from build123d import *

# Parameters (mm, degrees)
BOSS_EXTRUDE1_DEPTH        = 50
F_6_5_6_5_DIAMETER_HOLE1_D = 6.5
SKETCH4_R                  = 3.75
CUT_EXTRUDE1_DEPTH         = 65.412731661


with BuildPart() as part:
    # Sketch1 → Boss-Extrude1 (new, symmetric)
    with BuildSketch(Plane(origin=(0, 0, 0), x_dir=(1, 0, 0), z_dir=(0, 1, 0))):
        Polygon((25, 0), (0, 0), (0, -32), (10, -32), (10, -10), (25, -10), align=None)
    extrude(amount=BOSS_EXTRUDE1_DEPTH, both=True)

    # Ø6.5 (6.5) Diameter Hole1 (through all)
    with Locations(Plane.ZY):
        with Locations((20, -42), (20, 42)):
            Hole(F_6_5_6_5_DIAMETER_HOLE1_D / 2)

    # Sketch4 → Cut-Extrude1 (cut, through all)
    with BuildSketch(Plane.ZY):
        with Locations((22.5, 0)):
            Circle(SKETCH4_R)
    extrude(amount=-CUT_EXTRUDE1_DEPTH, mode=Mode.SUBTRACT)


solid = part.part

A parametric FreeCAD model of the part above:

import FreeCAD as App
import Part
import Sketcher
from FreeCAD import Vector
Q = App.Units.Quantity

doc = App.newDocument("Part")
params = doc.addObject("Spreadsheet::Sheet", "Params")
for row, (alias, value) in enumerate([
    ("sketch1_width", "25 mm"),
    ("sketch1_width2", "10 mm"),
    ("sketch1_height", "32 mm"),
    ("pad1_length", "100 mm"),
    ("sketch2_diameter", "6.5 mm"),
    ("hole_diameter", "6.5 mm"),
    ("sketch3_diameter", "7.5 mm"),
], start=1):
    params.set(f"A{row}", alias)
    params.set(f"B{row}", "=" + value)
    params.setAlias(f"B{row}", alias)

body = doc.addObject("PartDesign::Body", "Body")

# Sketch on XZ plane
sketch1 = body.newObject("Sketcher::SketchObject", "Sketch")
sketch1.AttachmentSupport = (doc.getObject("XZ_Plane"), [""])
sketch1.MapMode = "FlatFace"
sketch1.addGeometry(Part.LineSegment(Vector(25, 0, 0), Vector(0, 0, 0)), False)
sketch1.addGeometry(Part.LineSegment(Vector(0, 0, 0), Vector(0, 32, 0)), False)
sketch1.addGeometry(Part.LineSegment(Vector(0, 32, 0), Vector(10, 32, 0)), False)
sketch1.addGeometry(Part.LineSegment(Vector(10, 32, 0), Vector(10, 10, 0)), False)
sketch1.addGeometry(Part.LineSegment(Vector(10, 10, 0), Vector(25, 10, 0)), False)
sketch1.addGeometry(Part.LineSegment(Vector(25, 10, 0), Vector(25, 0, 0)), False)
sketch1.addConstraint(Sketcher.Constraint("Coincident", 0, 2, 1, 1))
sketch1.addConstraint(Sketcher.Constraint("Coincident", 1, 2, 2, 1))
sketch1.addConstraint(Sketcher.Constraint("Coincident", 2, 2, 3, 1))
sketch1.addConstraint(Sketcher.Constraint("Coincident", 3, 2, 4, 1))
sketch1.addConstraint(Sketcher.Constraint("Coincident", 4, 2, 5, 1))
sketch1.addConstraint(Sketcher.Constraint("Coincident", 5, 2, 0, 1))
sketch1.addConstraint(Sketcher.Constraint("Horizontal", 0))
sketch1.addConstraint(Sketcher.Constraint("Vertical", 1))
sketch1.addConstraint(Sketcher.Constraint("Horizontal", 2))
sketch1.addConstraint(Sketcher.Constraint("Vertical", 3))
sketch1.addConstraint(Sketcher.Constraint("Horizontal", 4))
sketch1.addConstraint(Sketcher.Constraint("Vertical", 5))
sketch1.addConstraint(Sketcher.Constraint("Coincident", 0, 2, -1, 1))
sketch1.addConstraint(Sketcher.Constraint("Equal", 2, 5))
sketch1.addConstraint(Sketcher.Constraint("DistanceX", 0, 2, 0, 1, Q("25 mm")))
sketch1.addConstraint(Sketcher.Constraint("DistanceX", 2, 1, 2, 2, Q("10 mm")))
sketch1.addConstraint(Sketcher.Constraint("DistanceY", 1, 1, 1, 2, Q("32 mm")))
sketch1.setExpression("Constraints[14]", "Params.sketch1_width")
sketch1.setExpression("Constraints[15]", "Params.sketch1_width2")
sketch1.setExpression("Constraints[16]", "Params.sketch1_height")
pad1 = body.newObject("PartDesign::Pad", "Pad")
pad1.Profile = sketch1
pad1.setExpression("Length", "Params.pad1_length")
pad1.Midplane = True

# Sketch on YZ plane
sketch2 = body.newObject("Sketcher::SketchObject", "Sketch001")
sketch2.AttachmentSupport = (doc.getObject("YZ_Plane"), [""])
sketch2.MapMode = "FlatFace"
sketch2.addGeometry(Part.Circle(Vector(-42, 20, 0), Vector(0, 0, 1), 3.2), False)
sketch2.addGeometry(Part.Circle(Vector(42, 20, 0), Vector(0, 0, 1), 3.2), False)
sketch2.addConstraint(Sketcher.Constraint("Equal", 0, 1))
sketch2.addConstraint(Sketcher.Constraint("Symmetric", 0, 3, 1, 3, -2))
sketch2.addConstraint(Sketcher.Constraint("Diameter", 0, Q("6.5 mm")))
sketch2.addConstraint(Sketcher.Constraint("DistanceX", 0, 3, -1, 1, Q("42 mm")))
sketch2.addConstraint(Sketcher.Constraint("DistanceY", -1, 1, 0, 3, Q("20 mm")))
sketch2.setExpression("Constraints[2]", "Params.sketch2_diameter")
doc.recompute()
hole = body.newObject("PartDesign::Hole", "Hole")
hole.Profile = sketch2
hole.ThreadType = "None"
hole.setExpression("Diameter", "Params.hole_diameter")
hole.DepthType = "ThroughAll"
hole.Reversed = True

# Sketch on YZ plane
sketch3 = body.newObject("Sketcher::SketchObject", "Sketch002")
sketch3.AttachmentSupport = (doc.getObject("YZ_Plane"), [""])
sketch3.MapMode = "FlatFace"
sketch3.addGeometry(Part.Circle(Vector(0, 22.5, 0), Vector(0, 0, 1), 3.8), False)
sketch3.addConstraint(Sketcher.Constraint("PointOnObject", 0, 3, -2))
sketch3.addConstraint(Sketcher.Constraint("Diameter", 0, Q("7.5 mm")))
sketch3.addConstraint(Sketcher.Constraint("DistanceY", -1, 1, 0, 3, Q("22.5 mm")))
sketch3.setExpression("Constraints[1]", "Params.sketch3_diameter")
pocket1 = body.newObject("PartDesign::Pocket", "Pocket")
pocket1.Profile = sketch3
pocket1.Type = "ThroughAll"
pocket1.Reversed = True

doc.recompute()
